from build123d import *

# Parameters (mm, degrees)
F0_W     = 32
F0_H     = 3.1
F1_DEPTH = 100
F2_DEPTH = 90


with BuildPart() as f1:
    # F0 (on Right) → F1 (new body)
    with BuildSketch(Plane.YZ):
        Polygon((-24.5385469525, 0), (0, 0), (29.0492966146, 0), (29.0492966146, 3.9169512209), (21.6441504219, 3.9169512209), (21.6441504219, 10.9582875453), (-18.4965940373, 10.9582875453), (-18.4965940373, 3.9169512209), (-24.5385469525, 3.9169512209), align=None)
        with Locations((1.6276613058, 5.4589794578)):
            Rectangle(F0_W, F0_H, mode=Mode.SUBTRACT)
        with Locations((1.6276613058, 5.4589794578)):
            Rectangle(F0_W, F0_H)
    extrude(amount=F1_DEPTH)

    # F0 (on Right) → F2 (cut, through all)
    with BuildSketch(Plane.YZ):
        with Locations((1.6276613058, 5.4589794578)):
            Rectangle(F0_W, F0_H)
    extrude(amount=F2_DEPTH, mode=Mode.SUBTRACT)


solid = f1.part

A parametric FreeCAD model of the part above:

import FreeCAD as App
import Part
import Sketcher
from FreeCAD import Vector

doc = App.newDocument("Part")
body = doc.addObject("PartDesign::Body", "Body")

sketch1 = body.newObject("Sketcher::SketchObject", "Sketch")
sketch1.AttachmentSupport = (doc.getObject("YZ_Plane"), [""])
sketch1.MapMode = "FlatFace"
sketch1.addGeometry([
    Part.LineSegment(Vector(-24.5, 0, 0), Vector(29, 0, 0)),
    Part.LineSegment(Vector(29, 0, 0), Vector(29, 3.9, 0)),
    Part.LineSegment(Vector(29, 3.9, 0), Vector(21.6, 3.9, 0)),
    Part.LineSegment(Vector(21.6, 3.9, 0), Vector(21.6, 11, 0)),
    Part.LineSegment(Vector(21.6, 11, 0), Vector(-18.5, 11, 0)),
    Part.LineSegment(Vector(-18.5, 11, 0), Vector(-18.5, 3.9, 0)),
    Part.LineSegment(Vector(-18.5, 3.9, 0), Vector(-24.5, 3.9, 0)),
    Part.LineSegment(Vector(-24.5, 3.9, 0), Vector(-24.5, 0, 0)),
], False)
sketch1.addConstraint([
    Sketcher.Constraint("Coincident", 0, 2, 1, 1),
    Sketcher.Constraint("Coincident", 1, 2, 2, 1),
    Sketcher.Constraint("Coincident", 2, 2, 3, 1),
    Sketcher.Constraint("Coincident", 3, 2, 4, 1),
    Sketcher.Constraint("Coincident", 4, 2, 5, 1),
    Sketcher.Constraint("Coincident", 5, 2, 6, 1),
    Sketcher.Constraint("Coincident", 6, 2, 7, 1),
    Sketcher.Constraint("Coincident", 7, 2, 0, 1),
    Sketcher.Constraint("Horizontal", 0),
    Sketcher.Constraint("Vertical", 1),
    Sketcher.Constraint("Horizontal", 2),
    Sketcher.Constraint("Vertical", 3),
    Sketcher.Constraint("Horizontal", 4),
    Sketcher.Constraint("Vertical", 5),
    Sketcher.Constraint("Horizontal", 6),
    Sketcher.Constraint("Vertical", 7),
    Sketcher.Constraint("PointOnObject", 0, 2, -1),
    Sketcher.Constraint("Horizontal", 2, 2, 5, 2),
    Sketcher.Constraint("DistanceY", 1, 1, 1, 2, 3.916951),
    Sketcher.Constraint("DistanceX", 0, 1, 0, 2, 53.587844),
    Sketcher.Constraint("DistanceX", 2, 2, 2, 1, 7.405146),
    Sketcher.Constraint("DistanceX", 4, 2, 4, 1, 40.140744),
    Sketcher.Constraint("DistanceY", 3, 1, 3, 2, 7.041336),
    Sketcher.Constraint("DistanceX", -1, 1, 2, 2, 21.64415),
])
pad1 = body.newObject("PartDesign::Pad", "Pad")
pad1.Profile = sketch1
pad1.Length = 100

sketch2 = body.newObject("Sketcher::SketchObject", "Sketch001")
sketch2.AttachmentSupport = (doc.getObject("YZ_Plane"), [""])
sketch2.MapMode = "FlatFace"
sketch2.addGeometry([
    Part.LineSegment(Vector(-14.4, 7, 0), Vector(-14.4, 3.9, 0)),
    Part.LineSegment(Vector(-14.4, 3.9, 0), Vector(17.6, 3.9, 0)),
    Part.LineSegment(Vector(17.6, 3.9, 0), Vector(17.6, 7, 0)),
    Part.LineSegment(Vector(17.6, 7, 0), Vector(-14.4, 7, 0)),
], False)
sketch2.addConstraint([
    Sketcher.Constraint("Coincident", 0, 2, 1, 1),
    Sketcher.Constraint("Coincident", 1, 2, 2, 1),
    Sketcher.Constraint("Coincident", 2, 2, 3, 1),
    Sketcher.Constraint("Coincident", 3, 2, 0, 1),
    Sketcher.Constraint("Vertical", 0),
    Sketcher.Constraint("Horizontal", 1),
    Sketcher.Constraint("Vertical", 2),
    Sketcher.Constraint("Horizontal", 3),
    Sketcher.Constraint("DistanceX", 1, 1, 1, 2, 32.0),
    Sketcher.Constraint("DistanceY", 0, 2, 0, 1, 3.1),
    Sketcher.Constraint("DistanceX", 0, 2, -1, 1, 14.372339),
    Sketcher.Constraint("DistanceY", -1, 1, 0, 2, 3.908979),
])
pocket1 = body.newObject("PartDesign::Pocket", "Pocket")
pocket1.Profile = sketch2
pocket1.Length = 90
pocket1.Reversed = True

doc.recompute()
